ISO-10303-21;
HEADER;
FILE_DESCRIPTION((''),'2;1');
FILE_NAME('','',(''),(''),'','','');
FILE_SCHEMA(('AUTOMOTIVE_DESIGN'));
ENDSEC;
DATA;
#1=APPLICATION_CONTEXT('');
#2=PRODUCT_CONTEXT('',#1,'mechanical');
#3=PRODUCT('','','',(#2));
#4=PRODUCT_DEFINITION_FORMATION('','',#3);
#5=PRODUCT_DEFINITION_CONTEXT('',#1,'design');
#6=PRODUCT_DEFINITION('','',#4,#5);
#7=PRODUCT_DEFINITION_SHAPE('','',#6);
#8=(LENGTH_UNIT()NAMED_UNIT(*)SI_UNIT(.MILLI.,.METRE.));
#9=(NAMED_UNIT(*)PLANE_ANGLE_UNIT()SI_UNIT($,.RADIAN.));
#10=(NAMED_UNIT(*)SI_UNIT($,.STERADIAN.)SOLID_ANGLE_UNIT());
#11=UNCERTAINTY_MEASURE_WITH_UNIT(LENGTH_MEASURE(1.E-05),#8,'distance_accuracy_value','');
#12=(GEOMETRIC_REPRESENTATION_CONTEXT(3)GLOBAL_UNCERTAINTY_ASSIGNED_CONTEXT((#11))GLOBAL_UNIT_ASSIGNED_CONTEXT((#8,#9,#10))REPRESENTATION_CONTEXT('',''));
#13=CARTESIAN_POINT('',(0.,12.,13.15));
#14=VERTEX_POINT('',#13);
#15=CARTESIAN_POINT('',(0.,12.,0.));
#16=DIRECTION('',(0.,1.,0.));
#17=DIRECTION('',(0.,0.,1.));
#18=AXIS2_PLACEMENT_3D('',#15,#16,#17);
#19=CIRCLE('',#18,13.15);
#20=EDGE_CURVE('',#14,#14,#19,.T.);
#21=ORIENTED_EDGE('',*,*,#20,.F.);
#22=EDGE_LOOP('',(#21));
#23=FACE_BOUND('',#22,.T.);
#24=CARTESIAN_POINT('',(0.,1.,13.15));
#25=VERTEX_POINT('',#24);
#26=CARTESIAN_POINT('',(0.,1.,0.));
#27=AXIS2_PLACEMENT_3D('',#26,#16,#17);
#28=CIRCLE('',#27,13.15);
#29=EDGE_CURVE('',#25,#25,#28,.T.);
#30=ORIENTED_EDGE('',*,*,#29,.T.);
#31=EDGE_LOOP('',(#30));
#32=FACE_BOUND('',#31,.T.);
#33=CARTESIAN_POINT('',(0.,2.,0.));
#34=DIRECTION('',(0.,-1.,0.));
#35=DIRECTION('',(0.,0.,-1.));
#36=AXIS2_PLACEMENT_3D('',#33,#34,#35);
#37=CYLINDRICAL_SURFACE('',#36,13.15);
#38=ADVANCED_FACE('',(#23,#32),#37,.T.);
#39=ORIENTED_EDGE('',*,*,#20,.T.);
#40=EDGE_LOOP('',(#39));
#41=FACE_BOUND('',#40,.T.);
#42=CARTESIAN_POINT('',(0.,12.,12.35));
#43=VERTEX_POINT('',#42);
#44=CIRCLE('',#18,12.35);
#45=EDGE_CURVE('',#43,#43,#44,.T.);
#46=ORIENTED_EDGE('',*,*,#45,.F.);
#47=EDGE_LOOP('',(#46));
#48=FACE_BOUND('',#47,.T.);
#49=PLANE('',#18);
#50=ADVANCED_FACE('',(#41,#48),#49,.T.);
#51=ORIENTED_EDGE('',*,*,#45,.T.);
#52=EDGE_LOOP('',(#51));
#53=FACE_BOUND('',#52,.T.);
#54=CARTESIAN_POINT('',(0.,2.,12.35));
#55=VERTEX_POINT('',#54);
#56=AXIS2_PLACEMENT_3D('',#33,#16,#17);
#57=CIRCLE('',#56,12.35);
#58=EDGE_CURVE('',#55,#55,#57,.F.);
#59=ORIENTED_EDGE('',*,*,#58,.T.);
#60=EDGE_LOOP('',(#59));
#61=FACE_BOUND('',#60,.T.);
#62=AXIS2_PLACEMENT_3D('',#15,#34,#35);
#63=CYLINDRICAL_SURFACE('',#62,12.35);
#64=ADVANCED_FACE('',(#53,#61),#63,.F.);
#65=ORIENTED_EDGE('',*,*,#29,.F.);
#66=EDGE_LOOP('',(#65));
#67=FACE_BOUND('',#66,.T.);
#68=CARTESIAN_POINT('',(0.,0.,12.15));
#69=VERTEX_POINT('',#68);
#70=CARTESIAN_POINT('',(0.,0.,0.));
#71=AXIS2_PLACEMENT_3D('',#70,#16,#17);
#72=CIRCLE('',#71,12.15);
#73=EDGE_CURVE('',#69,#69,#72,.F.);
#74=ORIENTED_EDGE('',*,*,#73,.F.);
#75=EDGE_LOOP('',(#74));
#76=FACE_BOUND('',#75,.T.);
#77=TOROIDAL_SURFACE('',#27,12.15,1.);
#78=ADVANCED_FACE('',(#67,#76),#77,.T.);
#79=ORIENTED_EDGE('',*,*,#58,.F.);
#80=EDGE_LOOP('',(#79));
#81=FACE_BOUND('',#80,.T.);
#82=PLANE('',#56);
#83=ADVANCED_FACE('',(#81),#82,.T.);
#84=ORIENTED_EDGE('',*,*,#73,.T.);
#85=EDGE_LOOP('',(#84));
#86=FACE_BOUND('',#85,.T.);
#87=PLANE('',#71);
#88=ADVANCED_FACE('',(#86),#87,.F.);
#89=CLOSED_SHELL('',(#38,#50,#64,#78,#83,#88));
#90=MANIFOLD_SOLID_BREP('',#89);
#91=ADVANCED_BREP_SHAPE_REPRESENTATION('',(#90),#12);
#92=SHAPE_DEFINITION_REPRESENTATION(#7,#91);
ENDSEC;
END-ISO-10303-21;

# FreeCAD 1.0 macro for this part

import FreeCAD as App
import Part
import Sketcher

V = App.Vector


def edges_at(feature, points):
    """Names of the edges that pass closest to the given points."""
    edges = feature.Shape.Edges
    near = lambda p: min(range(len(edges)), key=lambda i: edges[i].distToShape(Part.Vertex(*p))[0])
    return sorted({f"Edge{near(p) + 1}" for p in points})

doc = App.newDocument("Part")
body = doc.addObject("PartDesign::Body", "Body")

sketch1 = body.newObject("Sketcher::SketchObject", "Sketch")
sketch1.AttachmentSupport = (doc.getObject("XZ_Plane"), [""])
sketch1.MapMode = "FlatFace"
sketch1.addGeometry(Part.Circle(V(0, 0, 0), V(0, 0, 1), 13), False)
sketch1.addConstraint(Sketcher.Constraint("Coincident", 0, 3, -1, 1))
sketch1.addConstraint(Sketcher.Constraint("Diameter", 0, 26.3))
pad1 = body.newObject("PartDesign::Pad", "Pad")
pad1.Profile = sketch1
pad1.Length = 2
pad1.Reversed = True

sketch2 = body.newObject("Sketcher::SketchObject", "Sketch001")
sketch2.AttachmentSupport = (doc.getObject("XZ_Plane"), [""])
sketch2.MapMode = "FlatFace"
sketch2.AttachmentOffset = App.Placement(V(0, 0, -2), App.Rotation())
sketch2.addGeometry(Part.Circle(V(0, 0, 0), V(0, 0, 1), 13), False)
sketch2.addGeometry(Part.Circle(V(0, 0, 0), V(0, 0, 1), 12), False)
sketch2.addConstraint(Sketcher.Constraint("Coincident", 0, 3, -1, 1))
sketch2.addConstraint(Sketcher.Constraint("Coincident", 1, 3, -1, 1))
sketch2.addConstraint(Sketcher.Constraint("Diameter", 0, 26.3))
sketch2.addConstraint(Sketcher.Constraint("Diameter", 1, 24.7))
pad2 = body.newObject("PartDesign::Pad", "Pad001")
pad2.Profile = sketch2
pad2.Length = 10
pad2.Reversed = True
doc.recompute()

fillet = body.newObject("PartDesign::Fillet", "Fillet")
fillet.Base = (pad2, edges_at(pad2, [(0, 0, -13.15)]))
fillet.Radius = 1

doc.recompute()
